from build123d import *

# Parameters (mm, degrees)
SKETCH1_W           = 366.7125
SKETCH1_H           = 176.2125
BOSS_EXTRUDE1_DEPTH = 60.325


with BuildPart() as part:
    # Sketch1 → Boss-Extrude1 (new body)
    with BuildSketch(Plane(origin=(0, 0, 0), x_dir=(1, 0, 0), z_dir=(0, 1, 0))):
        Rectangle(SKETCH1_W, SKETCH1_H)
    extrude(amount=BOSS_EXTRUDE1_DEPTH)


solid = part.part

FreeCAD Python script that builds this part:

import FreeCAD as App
import Part
import Sketcher
Q = App.Units.Quantity


def add_polygon(sketch, points):
    """Adds a closed chain of lines whose ends are joined by coincident constraints."""
    first, n = sketch.GeometryCount, len(points)
    for a, b in zip(points, points[1:] + points[:1]):
        sketch.addGeometry(Part.LineSegment(App.Vector(*a, 0), App.Vector(*b, 0)), False)
    for i in range(n):
        sketch.addConstraint(Sketcher.Constraint("Coincident", first + i, 2, first + (i + 1) % n, 1))

doc = App.newDocument("Part")
body = doc.addObject("PartDesign::Body", "Body")

sketch1 = body.newObject("Sketcher::SketchObject", "Sketch")
sketch1.AttachmentSupport = (doc.getObject("XZ_Plane"), [""])
sketch1.MapMode = "FlatFace"
add_polygon(sketch1, [(-183, -88), (-183, 88), (183, 88), (183, -88)])
sketch1.addConstraint([
    Sketcher.Constraint("Vertical", 0),
    Sketcher.Constraint("Horizontal", 1),
    Sketcher.Constraint("Vertical", 2),
    Sketcher.Constraint("Horizontal", 3),
    Sketcher.Constraint("Symmetric", 0, 2, 2, 2, -1, 1),
    Sketcher.Constraint("DistanceX", 1, 1, 1, 2, Q("14.4375 in")),
    Sketcher.Constraint("DistanceY", 0, 1, 0, 2, Q("6.9375 in")),
])
pad1 = body.newObject("PartDesign::Pad", "Pad")
pad1.Profile = sketch1
pad1.Length = Q("2.375 in")
pad1.Reversed = True

doc.recompute()
